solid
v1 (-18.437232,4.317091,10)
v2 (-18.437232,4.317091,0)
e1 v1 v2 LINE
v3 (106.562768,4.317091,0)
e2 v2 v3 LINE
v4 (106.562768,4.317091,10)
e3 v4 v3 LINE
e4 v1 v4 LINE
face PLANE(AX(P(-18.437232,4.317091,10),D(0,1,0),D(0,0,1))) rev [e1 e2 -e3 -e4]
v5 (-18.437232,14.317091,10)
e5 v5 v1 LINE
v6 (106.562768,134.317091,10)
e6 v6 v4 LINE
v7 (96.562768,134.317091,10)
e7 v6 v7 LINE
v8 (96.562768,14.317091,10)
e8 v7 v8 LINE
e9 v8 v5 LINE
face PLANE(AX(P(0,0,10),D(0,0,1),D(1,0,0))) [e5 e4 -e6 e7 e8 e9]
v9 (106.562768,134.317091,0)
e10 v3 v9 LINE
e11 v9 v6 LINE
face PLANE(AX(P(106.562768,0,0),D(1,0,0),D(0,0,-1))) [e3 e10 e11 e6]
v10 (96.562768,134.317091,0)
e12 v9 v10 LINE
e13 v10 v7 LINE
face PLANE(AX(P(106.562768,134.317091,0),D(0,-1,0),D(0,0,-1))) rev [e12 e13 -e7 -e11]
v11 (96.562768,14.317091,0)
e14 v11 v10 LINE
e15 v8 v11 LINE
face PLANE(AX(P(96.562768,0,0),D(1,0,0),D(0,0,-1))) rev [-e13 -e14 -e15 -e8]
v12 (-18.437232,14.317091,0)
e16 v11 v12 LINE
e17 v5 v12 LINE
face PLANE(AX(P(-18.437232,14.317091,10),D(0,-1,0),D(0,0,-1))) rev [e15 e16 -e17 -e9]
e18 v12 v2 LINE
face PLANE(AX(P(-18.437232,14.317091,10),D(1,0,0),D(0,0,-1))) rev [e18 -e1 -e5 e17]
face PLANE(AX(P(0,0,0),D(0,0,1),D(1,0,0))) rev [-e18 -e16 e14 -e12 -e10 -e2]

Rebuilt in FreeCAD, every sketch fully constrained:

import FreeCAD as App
import Part
import Sketcher

V = App.Vector

doc = App.newDocument("Part")
body = doc.addObject("PartDesign::Body", "Body")

sketch1 = doc.addObject("Sketcher::SketchObject", "Sketch")
body.addObject(sketch1)
sketch1.AttachmentSupport = (doc.XY_Plane, [""])
sketch1.MapMode = "FlatFace"
sketch1.addGeometry([
    Part.LineSegment(V(-18, 14, 0), V(-18, 4, 0)),
    Part.LineSegment(V(-18, 4, 0), V(97, 4, 0)),
    Part.LineSegment(V(97, 4, 0), V(97, 14, 0)),
    Part.LineSegment(V(97, 14, 0), V(-18, 14, 0)),
], False)
sketch1.addConstraint([
    Sketcher.Constraint("Coincident", 0, 2, 1, 1),
    Sketcher.Constraint("Coincident", 1, 2, 2, 1),
    Sketcher.Constraint("Coincident", 2, 2, 3, 1),
    Sketcher.Constraint("Coincident", 3, 2, 0, 1),
    Sketcher.Constraint("Vertical", 0),
    Sketcher.Constraint("Horizontal", 1),
    Sketcher.Constraint("Vertical", 2),
    Sketcher.Constraint("Horizontal", 3),
    Sketcher.Constraint("DistanceX", 1, 1, 1, 2, 115.0),
    Sketcher.Constraint("DistanceY", 0, 2, 0, 1, 10.0),
    Sketcher.Constraint("DistanceX", 0, 2, -1, 1, 18.437232),
    Sketcher.Constraint("DistanceY", -1, 1, 0, 2, 4.317091),
])
pad1 = doc.addObject("PartDesign::Pad", "Pad")
body.addObject(pad1)
pad1.Profile = sketch1
pad1.Length = 10

sketch2 = doc.addObject("Sketcher::SketchObject", "Sketch001")
body.addObject(sketch2)
sketch2.AttachmentSupport = (doc.YZ_Plane, [""])
sketch2.MapMode = "FlatFace"
sketch2.AttachmentOffset = App.Placement(V(0, 0, 96.562768), App.Rotation())
sketch2.addGeometry([
    Part.LineSegment(V(134, 10, 0), V(4, 10, 0)),
    Part.LineSegment(V(4, 10, 0), V(4, 0, 0)),
    Part.LineSegment(V(4, 0, 0), V(134, 0, 0)),
    Part.LineSegment(V(134, 0, 0), V(134, 10, 0)),
], False)
sketch2.addConstraint([
    Sketcher.Constraint("Coincident", 0, 2, 1, 1),
    Sketcher.Constraint("Coincident", 1, 2, 2, 1),
    Sketcher.Constraint("Coincident", 2, 2, 3, 1),
    Sketcher.Constraint("Coincident", 3, 2, 0, 1),
    Sketcher.Constraint("Horizontal", 0),
    Sketcher.Constraint("Vertical", 1),
    Sketcher.Constraint("Horizontal", 2),
    Sketcher.Constraint("Vertical", 3),
    Sketcher.Constraint("PointOnObject", 1, 2, -1),
    Sketcher.Constraint("DistanceX", 0, 2, 0, 1, 130.0),
    Sketcher.Constraint("DistanceY", 1, 2, 1, 1, 10.0),
    Sketcher.Constraint("DistanceX", -1, 1, 0, 2, 4.317091),
])
pad2 = doc.addObject("PartDesign::Pad", "Pad001")
body.addObject(pad2)
pad2.Profile = sketch2
pad2.Length = 10

doc.recompute()
